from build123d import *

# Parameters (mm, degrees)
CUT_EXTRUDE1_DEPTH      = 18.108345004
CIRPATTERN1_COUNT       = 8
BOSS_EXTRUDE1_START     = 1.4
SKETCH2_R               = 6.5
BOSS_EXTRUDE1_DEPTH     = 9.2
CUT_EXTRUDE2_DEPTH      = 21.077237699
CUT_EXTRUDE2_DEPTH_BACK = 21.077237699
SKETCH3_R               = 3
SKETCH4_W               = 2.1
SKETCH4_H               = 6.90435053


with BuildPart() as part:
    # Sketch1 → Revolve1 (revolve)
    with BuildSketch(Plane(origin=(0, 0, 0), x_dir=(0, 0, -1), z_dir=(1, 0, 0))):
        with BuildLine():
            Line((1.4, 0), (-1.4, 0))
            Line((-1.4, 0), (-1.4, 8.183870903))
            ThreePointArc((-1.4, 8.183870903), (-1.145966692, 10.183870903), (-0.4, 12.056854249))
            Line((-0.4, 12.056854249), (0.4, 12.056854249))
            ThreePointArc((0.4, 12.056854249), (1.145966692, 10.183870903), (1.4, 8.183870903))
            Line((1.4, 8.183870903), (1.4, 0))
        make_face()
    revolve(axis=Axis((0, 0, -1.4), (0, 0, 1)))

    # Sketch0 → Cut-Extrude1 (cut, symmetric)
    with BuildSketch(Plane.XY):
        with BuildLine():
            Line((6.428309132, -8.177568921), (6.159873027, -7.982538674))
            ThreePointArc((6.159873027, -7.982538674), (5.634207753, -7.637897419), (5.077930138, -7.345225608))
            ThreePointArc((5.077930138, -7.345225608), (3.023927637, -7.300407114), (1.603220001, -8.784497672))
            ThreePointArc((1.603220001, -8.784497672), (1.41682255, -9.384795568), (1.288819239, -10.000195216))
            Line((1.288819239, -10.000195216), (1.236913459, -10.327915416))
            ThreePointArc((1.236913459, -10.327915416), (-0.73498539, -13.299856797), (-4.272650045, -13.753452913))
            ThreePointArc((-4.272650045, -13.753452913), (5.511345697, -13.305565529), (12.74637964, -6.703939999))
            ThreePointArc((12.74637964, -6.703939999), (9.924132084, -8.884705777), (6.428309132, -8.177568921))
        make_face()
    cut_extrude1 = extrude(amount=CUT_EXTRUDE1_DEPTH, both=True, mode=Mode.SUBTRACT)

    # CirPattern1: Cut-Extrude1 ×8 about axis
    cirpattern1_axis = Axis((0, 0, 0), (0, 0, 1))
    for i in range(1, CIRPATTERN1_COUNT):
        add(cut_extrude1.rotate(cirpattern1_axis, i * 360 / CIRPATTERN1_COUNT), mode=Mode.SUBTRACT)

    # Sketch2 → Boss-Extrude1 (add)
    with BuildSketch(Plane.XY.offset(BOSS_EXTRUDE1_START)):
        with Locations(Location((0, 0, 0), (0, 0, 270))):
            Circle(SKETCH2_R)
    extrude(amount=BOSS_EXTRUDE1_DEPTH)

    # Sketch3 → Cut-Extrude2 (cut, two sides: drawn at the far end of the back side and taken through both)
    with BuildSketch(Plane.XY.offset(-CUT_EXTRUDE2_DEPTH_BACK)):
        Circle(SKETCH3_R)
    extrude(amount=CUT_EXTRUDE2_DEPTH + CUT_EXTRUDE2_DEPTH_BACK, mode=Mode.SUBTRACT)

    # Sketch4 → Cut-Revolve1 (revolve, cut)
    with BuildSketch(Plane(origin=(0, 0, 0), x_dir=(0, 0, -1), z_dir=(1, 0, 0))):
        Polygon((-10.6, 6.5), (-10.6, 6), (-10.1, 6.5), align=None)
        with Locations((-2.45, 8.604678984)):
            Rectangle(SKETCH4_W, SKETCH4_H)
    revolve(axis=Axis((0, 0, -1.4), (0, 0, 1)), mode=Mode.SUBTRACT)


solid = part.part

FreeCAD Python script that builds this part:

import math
import FreeCAD as App
import Part
import Sketcher
Q = App.Units.Quantity

doc = App.newDocument("Part")
params = doc.addObject("Spreadsheet::Sheet", "Params")
for row, (alias, value) in enumerate([
    ("sketch1_radius", "8 mm"),
    ("sketch1_height", "2.8 mm"),
    ("sketch1_height2", "0.8 mm"),
    ("revolution_angle", "360 deg"),
    ("pocket1_length", "36.21669 mm"),
    ("sketch3_diameter", "13 mm"),
    ("pad1_length", "9.2 mm"),
    ("sketch4_diameter", "6 mm"),
    ("sketch5_width", "0.5 mm"),
    ("sketch5_height", "2.1 mm"),
    ("groove_angle", "360 deg"),
], start=1):
    params.set(f"A{row}", alias)
    params.set(f"B{row}", "=" + value)
    params.setAlias(f"B{row}", alias)

body = doc.addObject("PartDesign::Body", "Body")

# Sketch on YZ plane
sketch1 = body.newObject("Sketcher::SketchObject", "Sketch")
sketch1.AttachmentSupport = (doc.getObject("YZ_Plane"), [""])
sketch1.MapMode = "FlatFace"
sketch1.addGeometry([
    Part.LineSegment(App.Vector(0, 1.4, 0), App.Vector(0, -1.4, 0)),  # 0
    Part.LineSegment(App.Vector(0, -1.4, 0), App.Vector(8.2, -1.4, 0)),  # 1
    Part.ArcOfCircle(Part.Circle(App.Vector(8.2, 6.6, 0), App.Vector(0, 0, 1), 8), math.radians(-90), math.radians(-61)),  # 2
    Part.LineSegment(App.Vector(12.1, -0.4, 0), App.Vector(12.1, 0.4, 0)),  # 3
    Part.ArcOfCircle(Part.Circle(App.Vector(8.2, -6.6, 0), App.Vector(0, 0, 1), 8), math.radians(61), math.radians(90)),  # 4
    Part.LineSegment(App.Vector(8.2, 1.4, 0), App.Vector(0, 1.4, 0)),  # 5
], False)
sketch1.addConstraint([
    Sketcher.Constraint("Coincident", 0, 2, 1, 1),
    Sketcher.Constraint("Tangent", 1, 2, 2, 1),
    Sketcher.Constraint("Coincident", 2, 2, 3, 1),
    Sketcher.Constraint("Coincident", 3, 2, 4, 1),
    Sketcher.Constraint("Tangent", 4, 2, 5, 1),
    Sketcher.Constraint("Coincident", 5, 2, 0, 1),
    Sketcher.Constraint("Vertical", 0),
    Sketcher.Constraint("Horizontal", 1),
    Sketcher.Constraint("Vertical", 3),
    Sketcher.Constraint("Horizontal", 5),
    Sketcher.Constraint("Equal", 2, 4),
    Sketcher.Constraint("Symmetric", 0, 2, 5, 2, -1, 1),
    Sketcher.Constraint("Vertical", 2, 3, 4, 3),
    Sketcher.Constraint("Radius", 2, Q("8 mm")),
    Sketcher.Constraint("DistanceY", 0, 2, 0, 1, Q("2.8 mm")),
    Sketcher.Constraint("DistanceY", 3, 1, 3, 2, Q("0.8 mm")),
    Sketcher.Constraint("DistanceX", 1, 1, 1, 2, Q("8.183871 mm")),
])
sketch1.setExpression("Constraints[13]", "Params.sketch1_radius")
sketch1.setExpression("Constraints[14]", "Params.sketch1_height")
sketch1.setExpression("Constraints[15]", "Params.sketch1_height2")
revolution = body.newObject("PartDesign::Revolution", "Revolution")
revolution.Profile = sketch1
revolution.ReferenceAxis = (sketch1, ["V_Axis"])
revolution.setExpression("Angle", "Params.revolution_angle")

# Sketch on XY plane
sketch2 = body.newObject("Sketcher::SketchObject", "Sketch001")
sketch2.AttachmentSupport = (doc.getObject("XY_Plane"), [""])
sketch2.MapMode = "FlatFace"
sketch2.addGeometry([
    Part.LineSegment(App.Vector(6.43, -8.18, 0), App.Vector(6.16, -7.98, 0)),  # 0
    Part.ArcOfCircle(Part.Circle(App.Vector(2.31, -13.28, 0), App.Vector(0, 0, 1), 6.55), math.radians(54), math.radians(65)),  # 1
    Part.ArcOfCircle(Part.Circle(App.Vector(4, -9.66, 0), App.Vector(0, 0, 1), 2.55), math.radians(65), math.radians(160)),  # 2
    Part.ArcOfCircle(Part.Circle(App.Vector(7.76, -11.02, 0), App.Vector(0, 0, 1), 6.55), math.radians(160), math.radians(171)),  # 3
    Part.LineSegment(App.Vector(1.29, -10, 0), App.Vector(1.24, -10.33, 0)),  # 4
    Part.ArcOfCircle(Part.Circle(App.Vector(-3, -9.66, 0), App.Vector(0, 0, 1), 4.29), math.radians(-107), math.radians(-9)),  # 5
    Part.ArcOfCircle(Part.Circle(App.Vector(0, 0, 0), App.Vector(0, 0, 1), 14.4), math.radians(-107), math.radians(-28)),  # 6
    Part.ArcOfCircle(Part.Circle(App.Vector(8.95, -4.71, 0), App.Vector(0, 0, 1), 4.29), math.radians(-126), math.radians(-28)),  # 7
], False)
sketch2.addConstraint([
    Sketcher.Constraint("Tangent", 0, 2, 1, 1),
    Sketcher.Constraint("Tangent", 1, 2, 2, 1),
    Sketcher.Constraint("Tangent", 2, 2, 3, 1),
    Sketcher.Constraint("Tangent", 3, 2, 4, 1),
    Sketcher.Constraint("Tangent", 4, 2, 5, 2),
    Sketcher.Constraint("Tangent", 5, 1, 6, 1),
    Sketcher.Constraint("Tangent", 6, 2, 7, 2),
    Sketcher.Constraint("Tangent", 7, 1, 0, 1),
    Sketcher.Constraint("Coincident", 6, 3, -1, 1),
    Sketcher.Constraint("Equal", 1, 3),
    Sketcher.Constraint("Equal", 5, 7),
    Sketcher.Constraint("Horizontal", 2, 3, 5, 3),
    Sketcher.Constraint("Equal", 0, 4),
    Sketcher.Constraint("Angle", 0, Q("144 deg")),
    Sketcher.Constraint("Angle", 4, Q("-99 deg")),
    Sketcher.Constraint("DistanceX", -1, 1, 2, 3, Q("4 mm")),
    Sketcher.Constraint("DistanceX", 5, 3, -1, 1, Q("3 mm")),
    Sketcher.Constraint("Radius", 1, Q("6.5506 mm")),
    Sketcher.Constraint("Radius", 2, Q("2.5506 mm")),
    Sketcher.Constraint("Radius", 6, Q("14.40184 mm")),
    Sketcher.Constraint("Radius", 5, Q("4.289727 mm")),
])
pocket1 = body.newObject("PartDesign::Pocket", "Pocket")
pocket1.Profile = sketch2
pocket1.setExpression("Length", "Params.pocket1_length")
pocket1.Midplane = True
doc.recompute()

polarpattern = body.newObject("PartDesign::PolarPattern", "PolarPattern")
polarpattern.Originals = [pocket1]
polarpattern.Axis = (doc.getObject("Z_Axis"), [""])
polarpattern.Angle = 360
polarpattern.Occurrences = 8
body.Tip = polarpattern

# Sketch on XY plane
sketch3 = body.newObject("Sketcher::SketchObject", "Sketch002")
sketch3.AttachmentSupport = (doc.getObject("XY_Plane"), [""])
sketch3.MapMode = "FlatFace"
sketch3.AttachmentOffset = App.Placement(App.Vector(0, 0, 1.4), App.Rotation())
sketch3.addGeometry(Part.Circle(App.Vector(0, 0, 0), App.Vector(0, 0, 1), 6), False)
sketch3.addConstraint([
    Sketcher.Constraint("Coincident", 0, 3, -1, 1),
    Sketcher.Constraint("Diameter", 0, Q("13 mm")),
])
sketch3.setExpression("Constraints[1]", "Params.sketch3_diameter")
pad1 = body.newObject("PartDesign::Pad", "Pad")
pad1.Profile = sketch3
pad1.setExpression("Length", "Params.pad1_length")

# Sketch on XY plane
sketch4 = body.newObject("Sketcher::SketchObject", "Sketch003")
sketch4.AttachmentSupport = (doc.getObject("XY_Plane"), [""])
sketch4.MapMode = "FlatFace"
sketch4.addGeometry(Part.Circle(App.Vector(0, 0, 0), App.Vector(0, 0, 1), 3), False)
sketch4.addConstraint([
    Sketcher.Constraint("Coincident", 0, 3, -1, 1),
    Sketcher.Constraint("Diameter", 0, Q("6 mm")),
])
sketch4.setExpression("Constraints[1]", "Params.sketch4_diameter")
pocket2 = body.newObject("PartDesign::Pocket", "Pocket001")
pocket2.Profile = sketch4
pocket2.Type = "ThroughAll"
pocket2.Midplane = True

# Sketch on YZ plane
sketch5 = body.newObject("Sketcher::SketchObject", "Sketch004")
sketch5.AttachmentSupport = (doc.getObject("YZ_Plane"), [""])
sketch5.MapMode = "FlatFace"
sketch5.addGeometry([
    Part.LineSegment(App.Vector(6.5, 10.6, 0), App.Vector(6, 10.6, 0)),  # 0
    Part.LineSegment(App.Vector(6, 10.6, 0), App.Vector(6.5, 10.1, 0)),  # 1
    Part.LineSegment(App.Vector(6.5, 10.1, 0), App.Vector(6.5, 10.6, 0)),  # 2
    Part.LineSegment(App.Vector(12.1, 3.5, 0), App.Vector(5.2, 3.5, 0)),  # 3
    Part.LineSegment(App.Vector(5.2, 3.5, 0), App.Vector(5.2, 1.4, 0)),  # 4
    Part.LineSegment(App.Vector(5.2, 1.4, 0), App.Vector(12.1, 1.4, 0)),  # 5
    Part.LineSegment(App.Vector(12.1, 1.4, 0), App.Vector(12.1, 3.5, 0)),  # 6
], False)
sketch5.addConstraint([
    Sketcher.Constraint("Coincident", 0, 2, 1, 1),
    Sketcher.Constraint("Coincident", 1, 2, 2, 1),
    Sketcher.Constraint("Coincident", 2, 2, 0, 1),
    Sketcher.Constraint("Coincident", 3, 2, 4, 1),
    Sketcher.Constraint("Coincident", 4, 2, 5, 1),
    Sketcher.Constraint("Coincident", 5, 2, 6, 1),
    Sketcher.Constraint("Coincident", 6, 2, 3, 1),
    Sketcher.Constraint("Horizontal", 0),
    Sketcher.Constraint("Vertical", 2),
    Sketcher.Constraint("Horizontal", 3),
    Sketcher.Constraint("Vertical", 4),
    Sketcher.Constraint("Horizontal", 5),
    Sketcher.Constraint("Vertical", 6),
    Sketcher.Constraint("Equal", 0, 2),
    Sketcher.Constraint("DistanceX", 0, 2, 0, 1, Q("0.5 mm")),
    Sketcher.Constraint("DistanceY", 4, 2, 4, 1, Q("2.1 mm")),
    Sketcher.Constraint("DistanceX", -1, 1, 0, 2, Q("6 mm")),
    Sketcher.Constraint("DistanceY", -1, 1, 0, 2, Q("10.6 mm")),
    Sketcher.Constraint("DistanceY", -1, 1, 3, 2, Q("3.5 mm")),
    Sketcher.Constraint("DistanceX", 3, 2, 3, 1, Q("6.904351 mm")),
    Sketcher.Constraint("DistanceX", -1, 1, 3, 2, Q("5.152504 mm")),
])
sketch5.setExpression("Constraints[14]", "Params.sketch5_width")
sketch5.setExpression("Constraints[15]", "Params.sketch5_height")
groove = body.newObject("PartDesign::Groove", "Groove")
groove.Profile = sketch5
groove.ReferenceAxis = (sketch5, ["V_Axis"])
groove.setExpression("Angle", "Params.groove_angle")

doc.recompute()
